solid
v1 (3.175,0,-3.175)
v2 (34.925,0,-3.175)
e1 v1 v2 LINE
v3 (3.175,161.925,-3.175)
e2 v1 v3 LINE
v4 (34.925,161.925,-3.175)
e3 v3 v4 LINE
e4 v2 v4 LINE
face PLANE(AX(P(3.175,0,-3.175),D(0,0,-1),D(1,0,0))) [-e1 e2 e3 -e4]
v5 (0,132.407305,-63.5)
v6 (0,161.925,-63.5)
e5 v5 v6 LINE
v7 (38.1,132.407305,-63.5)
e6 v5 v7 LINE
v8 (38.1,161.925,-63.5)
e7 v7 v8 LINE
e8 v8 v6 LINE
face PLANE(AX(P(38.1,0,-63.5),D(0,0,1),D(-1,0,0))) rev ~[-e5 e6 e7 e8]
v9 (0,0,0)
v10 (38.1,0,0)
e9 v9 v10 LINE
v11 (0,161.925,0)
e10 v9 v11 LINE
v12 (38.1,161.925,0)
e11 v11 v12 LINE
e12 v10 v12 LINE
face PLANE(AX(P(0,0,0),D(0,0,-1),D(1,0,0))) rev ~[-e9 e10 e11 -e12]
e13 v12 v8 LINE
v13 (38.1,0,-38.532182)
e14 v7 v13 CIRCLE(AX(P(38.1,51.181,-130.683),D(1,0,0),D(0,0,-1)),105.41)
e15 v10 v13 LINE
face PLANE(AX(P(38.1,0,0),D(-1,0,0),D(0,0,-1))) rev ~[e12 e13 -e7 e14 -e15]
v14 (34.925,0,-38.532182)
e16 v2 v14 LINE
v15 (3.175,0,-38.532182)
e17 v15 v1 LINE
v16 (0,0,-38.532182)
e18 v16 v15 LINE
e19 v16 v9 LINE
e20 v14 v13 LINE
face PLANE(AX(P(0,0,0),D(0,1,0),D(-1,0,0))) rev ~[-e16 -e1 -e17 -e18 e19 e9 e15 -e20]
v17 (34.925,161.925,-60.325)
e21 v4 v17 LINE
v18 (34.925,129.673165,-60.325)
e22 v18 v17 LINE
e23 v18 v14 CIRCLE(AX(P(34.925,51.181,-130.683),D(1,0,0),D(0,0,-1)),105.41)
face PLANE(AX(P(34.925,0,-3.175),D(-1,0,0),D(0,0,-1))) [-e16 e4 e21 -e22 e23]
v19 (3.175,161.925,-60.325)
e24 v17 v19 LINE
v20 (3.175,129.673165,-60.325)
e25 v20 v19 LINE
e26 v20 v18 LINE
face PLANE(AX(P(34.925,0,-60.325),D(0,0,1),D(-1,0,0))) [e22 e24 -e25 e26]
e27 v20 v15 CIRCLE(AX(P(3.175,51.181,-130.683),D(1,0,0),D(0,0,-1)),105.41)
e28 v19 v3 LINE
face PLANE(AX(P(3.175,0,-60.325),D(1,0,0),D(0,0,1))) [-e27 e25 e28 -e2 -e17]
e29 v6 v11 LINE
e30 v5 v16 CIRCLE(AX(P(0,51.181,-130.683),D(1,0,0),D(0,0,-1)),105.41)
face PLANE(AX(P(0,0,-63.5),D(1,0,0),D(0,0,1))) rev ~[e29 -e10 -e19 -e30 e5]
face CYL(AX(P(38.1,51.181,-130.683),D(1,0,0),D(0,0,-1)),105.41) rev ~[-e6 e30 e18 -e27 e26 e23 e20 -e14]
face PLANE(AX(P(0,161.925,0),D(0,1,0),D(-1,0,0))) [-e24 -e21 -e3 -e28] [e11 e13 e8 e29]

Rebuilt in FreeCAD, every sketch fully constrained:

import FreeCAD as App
import Part
import Sketcher

V = App.Vector
Q = App.Units.Quantity


def add_polygon(sketch, points):
    """Adds a closed chain of lines whose ends are joined by coincident constraints."""
    first, n = sketch.GeometryCount, len(points)
    for a, b in zip(points, points[1:] + points[:1]):
        sketch.addGeometry(Part.LineSegment(App.Vector(*a, 0), App.Vector(*b, 0)), False)
    for i in range(n):
        sketch.addConstraint(Sketcher.Constraint("Coincident", first + i, 2, first + (i + 1) % n, 1))

doc = App.newDocument("Part")
body = doc.addObject("PartDesign::Body", "Body")

sketch1 = body.newObject("Sketcher::SketchObject", "Sketch")
sketch1.AttachmentSupport = (doc.getObject("XZ_Plane"), [""])
sketch1.MapMode = "FlatFace"
add_polygon(sketch1, [(0, -63.5), (0, 0), (38.1, 0), (38.1, -63.5)])
add_polygon(sketch1, [(34.925, -3.175), (3.175, -3.175), (3.175, -60.325), (34.925, -60.325)])
sketch1.addConstraint([
    Sketcher.Constraint("Vertical", 0),
    Sketcher.Constraint("Horizontal", 1),
    Sketcher.Constraint("Vertical", 2),
    Sketcher.Constraint("Horizontal", 3),
    Sketcher.Constraint("Horizontal", 4),
    Sketcher.Constraint("Vertical", 5),
    Sketcher.Constraint("Horizontal", 6),
    Sketcher.Constraint("Vertical", 7),
    Sketcher.Constraint("Coincident", 0, 2, -1, 1),
    Sketcher.Constraint("DistanceX", 1, 1, 1, 2, Q("1.5 in")),
    Sketcher.Constraint("DistanceY", 0, 1, 0, 2, Q("2.5 in")),
    Sketcher.Constraint("DistanceX", -1, 1, 4, 2, Q("0.125 in")),
    Sketcher.Constraint("DistanceY", 4, 2, -1, 1, Q("0.125 in")),
    Sketcher.Constraint("DistanceY", 3, 2, 5, 2, Q("0.125 in")),
    Sketcher.Constraint("DistanceX", 6, 2, 2, 2, Q("0.125 in")),
])
pad1 = body.newObject("PartDesign::Pad", "Pad")
pad1.Profile = sketch1
pad1.Length = Q("6.375 in")
pad1.Reversed = True

sketch2 = body.newObject("Sketcher::SketchObject", "Sketch001")
sketch2.AttachmentSupport = (doc.getObject("YZ_Plane"), [""])
sketch2.MapMode = "FlatFace"
sketch2.AttachmentOffset = App.Placement(V(0, 0, 1.5 * 25.4), App.Rotation())
sketch2.addGeometry(Part.Circle(V(51.181, -130.683, 0), V(0, 0, 1), 105.41), False)
sketch2.addConstraint([
    Sketcher.Constraint("Diameter", 0, Q("8.3 in")),
    Sketcher.Constraint("DistanceX", -1, 1, 0, 3, Q("2.015 in")),
    Sketcher.Constraint("DistanceY", 0, 3, -1, 1, Q("5.145 in")),
])
pocket1 = body.newObject("PartDesign::Pocket", "Pocket")
pocket1.Profile = sketch2
pocket1.Length = Q("2.375 in")

doc.recompute()
